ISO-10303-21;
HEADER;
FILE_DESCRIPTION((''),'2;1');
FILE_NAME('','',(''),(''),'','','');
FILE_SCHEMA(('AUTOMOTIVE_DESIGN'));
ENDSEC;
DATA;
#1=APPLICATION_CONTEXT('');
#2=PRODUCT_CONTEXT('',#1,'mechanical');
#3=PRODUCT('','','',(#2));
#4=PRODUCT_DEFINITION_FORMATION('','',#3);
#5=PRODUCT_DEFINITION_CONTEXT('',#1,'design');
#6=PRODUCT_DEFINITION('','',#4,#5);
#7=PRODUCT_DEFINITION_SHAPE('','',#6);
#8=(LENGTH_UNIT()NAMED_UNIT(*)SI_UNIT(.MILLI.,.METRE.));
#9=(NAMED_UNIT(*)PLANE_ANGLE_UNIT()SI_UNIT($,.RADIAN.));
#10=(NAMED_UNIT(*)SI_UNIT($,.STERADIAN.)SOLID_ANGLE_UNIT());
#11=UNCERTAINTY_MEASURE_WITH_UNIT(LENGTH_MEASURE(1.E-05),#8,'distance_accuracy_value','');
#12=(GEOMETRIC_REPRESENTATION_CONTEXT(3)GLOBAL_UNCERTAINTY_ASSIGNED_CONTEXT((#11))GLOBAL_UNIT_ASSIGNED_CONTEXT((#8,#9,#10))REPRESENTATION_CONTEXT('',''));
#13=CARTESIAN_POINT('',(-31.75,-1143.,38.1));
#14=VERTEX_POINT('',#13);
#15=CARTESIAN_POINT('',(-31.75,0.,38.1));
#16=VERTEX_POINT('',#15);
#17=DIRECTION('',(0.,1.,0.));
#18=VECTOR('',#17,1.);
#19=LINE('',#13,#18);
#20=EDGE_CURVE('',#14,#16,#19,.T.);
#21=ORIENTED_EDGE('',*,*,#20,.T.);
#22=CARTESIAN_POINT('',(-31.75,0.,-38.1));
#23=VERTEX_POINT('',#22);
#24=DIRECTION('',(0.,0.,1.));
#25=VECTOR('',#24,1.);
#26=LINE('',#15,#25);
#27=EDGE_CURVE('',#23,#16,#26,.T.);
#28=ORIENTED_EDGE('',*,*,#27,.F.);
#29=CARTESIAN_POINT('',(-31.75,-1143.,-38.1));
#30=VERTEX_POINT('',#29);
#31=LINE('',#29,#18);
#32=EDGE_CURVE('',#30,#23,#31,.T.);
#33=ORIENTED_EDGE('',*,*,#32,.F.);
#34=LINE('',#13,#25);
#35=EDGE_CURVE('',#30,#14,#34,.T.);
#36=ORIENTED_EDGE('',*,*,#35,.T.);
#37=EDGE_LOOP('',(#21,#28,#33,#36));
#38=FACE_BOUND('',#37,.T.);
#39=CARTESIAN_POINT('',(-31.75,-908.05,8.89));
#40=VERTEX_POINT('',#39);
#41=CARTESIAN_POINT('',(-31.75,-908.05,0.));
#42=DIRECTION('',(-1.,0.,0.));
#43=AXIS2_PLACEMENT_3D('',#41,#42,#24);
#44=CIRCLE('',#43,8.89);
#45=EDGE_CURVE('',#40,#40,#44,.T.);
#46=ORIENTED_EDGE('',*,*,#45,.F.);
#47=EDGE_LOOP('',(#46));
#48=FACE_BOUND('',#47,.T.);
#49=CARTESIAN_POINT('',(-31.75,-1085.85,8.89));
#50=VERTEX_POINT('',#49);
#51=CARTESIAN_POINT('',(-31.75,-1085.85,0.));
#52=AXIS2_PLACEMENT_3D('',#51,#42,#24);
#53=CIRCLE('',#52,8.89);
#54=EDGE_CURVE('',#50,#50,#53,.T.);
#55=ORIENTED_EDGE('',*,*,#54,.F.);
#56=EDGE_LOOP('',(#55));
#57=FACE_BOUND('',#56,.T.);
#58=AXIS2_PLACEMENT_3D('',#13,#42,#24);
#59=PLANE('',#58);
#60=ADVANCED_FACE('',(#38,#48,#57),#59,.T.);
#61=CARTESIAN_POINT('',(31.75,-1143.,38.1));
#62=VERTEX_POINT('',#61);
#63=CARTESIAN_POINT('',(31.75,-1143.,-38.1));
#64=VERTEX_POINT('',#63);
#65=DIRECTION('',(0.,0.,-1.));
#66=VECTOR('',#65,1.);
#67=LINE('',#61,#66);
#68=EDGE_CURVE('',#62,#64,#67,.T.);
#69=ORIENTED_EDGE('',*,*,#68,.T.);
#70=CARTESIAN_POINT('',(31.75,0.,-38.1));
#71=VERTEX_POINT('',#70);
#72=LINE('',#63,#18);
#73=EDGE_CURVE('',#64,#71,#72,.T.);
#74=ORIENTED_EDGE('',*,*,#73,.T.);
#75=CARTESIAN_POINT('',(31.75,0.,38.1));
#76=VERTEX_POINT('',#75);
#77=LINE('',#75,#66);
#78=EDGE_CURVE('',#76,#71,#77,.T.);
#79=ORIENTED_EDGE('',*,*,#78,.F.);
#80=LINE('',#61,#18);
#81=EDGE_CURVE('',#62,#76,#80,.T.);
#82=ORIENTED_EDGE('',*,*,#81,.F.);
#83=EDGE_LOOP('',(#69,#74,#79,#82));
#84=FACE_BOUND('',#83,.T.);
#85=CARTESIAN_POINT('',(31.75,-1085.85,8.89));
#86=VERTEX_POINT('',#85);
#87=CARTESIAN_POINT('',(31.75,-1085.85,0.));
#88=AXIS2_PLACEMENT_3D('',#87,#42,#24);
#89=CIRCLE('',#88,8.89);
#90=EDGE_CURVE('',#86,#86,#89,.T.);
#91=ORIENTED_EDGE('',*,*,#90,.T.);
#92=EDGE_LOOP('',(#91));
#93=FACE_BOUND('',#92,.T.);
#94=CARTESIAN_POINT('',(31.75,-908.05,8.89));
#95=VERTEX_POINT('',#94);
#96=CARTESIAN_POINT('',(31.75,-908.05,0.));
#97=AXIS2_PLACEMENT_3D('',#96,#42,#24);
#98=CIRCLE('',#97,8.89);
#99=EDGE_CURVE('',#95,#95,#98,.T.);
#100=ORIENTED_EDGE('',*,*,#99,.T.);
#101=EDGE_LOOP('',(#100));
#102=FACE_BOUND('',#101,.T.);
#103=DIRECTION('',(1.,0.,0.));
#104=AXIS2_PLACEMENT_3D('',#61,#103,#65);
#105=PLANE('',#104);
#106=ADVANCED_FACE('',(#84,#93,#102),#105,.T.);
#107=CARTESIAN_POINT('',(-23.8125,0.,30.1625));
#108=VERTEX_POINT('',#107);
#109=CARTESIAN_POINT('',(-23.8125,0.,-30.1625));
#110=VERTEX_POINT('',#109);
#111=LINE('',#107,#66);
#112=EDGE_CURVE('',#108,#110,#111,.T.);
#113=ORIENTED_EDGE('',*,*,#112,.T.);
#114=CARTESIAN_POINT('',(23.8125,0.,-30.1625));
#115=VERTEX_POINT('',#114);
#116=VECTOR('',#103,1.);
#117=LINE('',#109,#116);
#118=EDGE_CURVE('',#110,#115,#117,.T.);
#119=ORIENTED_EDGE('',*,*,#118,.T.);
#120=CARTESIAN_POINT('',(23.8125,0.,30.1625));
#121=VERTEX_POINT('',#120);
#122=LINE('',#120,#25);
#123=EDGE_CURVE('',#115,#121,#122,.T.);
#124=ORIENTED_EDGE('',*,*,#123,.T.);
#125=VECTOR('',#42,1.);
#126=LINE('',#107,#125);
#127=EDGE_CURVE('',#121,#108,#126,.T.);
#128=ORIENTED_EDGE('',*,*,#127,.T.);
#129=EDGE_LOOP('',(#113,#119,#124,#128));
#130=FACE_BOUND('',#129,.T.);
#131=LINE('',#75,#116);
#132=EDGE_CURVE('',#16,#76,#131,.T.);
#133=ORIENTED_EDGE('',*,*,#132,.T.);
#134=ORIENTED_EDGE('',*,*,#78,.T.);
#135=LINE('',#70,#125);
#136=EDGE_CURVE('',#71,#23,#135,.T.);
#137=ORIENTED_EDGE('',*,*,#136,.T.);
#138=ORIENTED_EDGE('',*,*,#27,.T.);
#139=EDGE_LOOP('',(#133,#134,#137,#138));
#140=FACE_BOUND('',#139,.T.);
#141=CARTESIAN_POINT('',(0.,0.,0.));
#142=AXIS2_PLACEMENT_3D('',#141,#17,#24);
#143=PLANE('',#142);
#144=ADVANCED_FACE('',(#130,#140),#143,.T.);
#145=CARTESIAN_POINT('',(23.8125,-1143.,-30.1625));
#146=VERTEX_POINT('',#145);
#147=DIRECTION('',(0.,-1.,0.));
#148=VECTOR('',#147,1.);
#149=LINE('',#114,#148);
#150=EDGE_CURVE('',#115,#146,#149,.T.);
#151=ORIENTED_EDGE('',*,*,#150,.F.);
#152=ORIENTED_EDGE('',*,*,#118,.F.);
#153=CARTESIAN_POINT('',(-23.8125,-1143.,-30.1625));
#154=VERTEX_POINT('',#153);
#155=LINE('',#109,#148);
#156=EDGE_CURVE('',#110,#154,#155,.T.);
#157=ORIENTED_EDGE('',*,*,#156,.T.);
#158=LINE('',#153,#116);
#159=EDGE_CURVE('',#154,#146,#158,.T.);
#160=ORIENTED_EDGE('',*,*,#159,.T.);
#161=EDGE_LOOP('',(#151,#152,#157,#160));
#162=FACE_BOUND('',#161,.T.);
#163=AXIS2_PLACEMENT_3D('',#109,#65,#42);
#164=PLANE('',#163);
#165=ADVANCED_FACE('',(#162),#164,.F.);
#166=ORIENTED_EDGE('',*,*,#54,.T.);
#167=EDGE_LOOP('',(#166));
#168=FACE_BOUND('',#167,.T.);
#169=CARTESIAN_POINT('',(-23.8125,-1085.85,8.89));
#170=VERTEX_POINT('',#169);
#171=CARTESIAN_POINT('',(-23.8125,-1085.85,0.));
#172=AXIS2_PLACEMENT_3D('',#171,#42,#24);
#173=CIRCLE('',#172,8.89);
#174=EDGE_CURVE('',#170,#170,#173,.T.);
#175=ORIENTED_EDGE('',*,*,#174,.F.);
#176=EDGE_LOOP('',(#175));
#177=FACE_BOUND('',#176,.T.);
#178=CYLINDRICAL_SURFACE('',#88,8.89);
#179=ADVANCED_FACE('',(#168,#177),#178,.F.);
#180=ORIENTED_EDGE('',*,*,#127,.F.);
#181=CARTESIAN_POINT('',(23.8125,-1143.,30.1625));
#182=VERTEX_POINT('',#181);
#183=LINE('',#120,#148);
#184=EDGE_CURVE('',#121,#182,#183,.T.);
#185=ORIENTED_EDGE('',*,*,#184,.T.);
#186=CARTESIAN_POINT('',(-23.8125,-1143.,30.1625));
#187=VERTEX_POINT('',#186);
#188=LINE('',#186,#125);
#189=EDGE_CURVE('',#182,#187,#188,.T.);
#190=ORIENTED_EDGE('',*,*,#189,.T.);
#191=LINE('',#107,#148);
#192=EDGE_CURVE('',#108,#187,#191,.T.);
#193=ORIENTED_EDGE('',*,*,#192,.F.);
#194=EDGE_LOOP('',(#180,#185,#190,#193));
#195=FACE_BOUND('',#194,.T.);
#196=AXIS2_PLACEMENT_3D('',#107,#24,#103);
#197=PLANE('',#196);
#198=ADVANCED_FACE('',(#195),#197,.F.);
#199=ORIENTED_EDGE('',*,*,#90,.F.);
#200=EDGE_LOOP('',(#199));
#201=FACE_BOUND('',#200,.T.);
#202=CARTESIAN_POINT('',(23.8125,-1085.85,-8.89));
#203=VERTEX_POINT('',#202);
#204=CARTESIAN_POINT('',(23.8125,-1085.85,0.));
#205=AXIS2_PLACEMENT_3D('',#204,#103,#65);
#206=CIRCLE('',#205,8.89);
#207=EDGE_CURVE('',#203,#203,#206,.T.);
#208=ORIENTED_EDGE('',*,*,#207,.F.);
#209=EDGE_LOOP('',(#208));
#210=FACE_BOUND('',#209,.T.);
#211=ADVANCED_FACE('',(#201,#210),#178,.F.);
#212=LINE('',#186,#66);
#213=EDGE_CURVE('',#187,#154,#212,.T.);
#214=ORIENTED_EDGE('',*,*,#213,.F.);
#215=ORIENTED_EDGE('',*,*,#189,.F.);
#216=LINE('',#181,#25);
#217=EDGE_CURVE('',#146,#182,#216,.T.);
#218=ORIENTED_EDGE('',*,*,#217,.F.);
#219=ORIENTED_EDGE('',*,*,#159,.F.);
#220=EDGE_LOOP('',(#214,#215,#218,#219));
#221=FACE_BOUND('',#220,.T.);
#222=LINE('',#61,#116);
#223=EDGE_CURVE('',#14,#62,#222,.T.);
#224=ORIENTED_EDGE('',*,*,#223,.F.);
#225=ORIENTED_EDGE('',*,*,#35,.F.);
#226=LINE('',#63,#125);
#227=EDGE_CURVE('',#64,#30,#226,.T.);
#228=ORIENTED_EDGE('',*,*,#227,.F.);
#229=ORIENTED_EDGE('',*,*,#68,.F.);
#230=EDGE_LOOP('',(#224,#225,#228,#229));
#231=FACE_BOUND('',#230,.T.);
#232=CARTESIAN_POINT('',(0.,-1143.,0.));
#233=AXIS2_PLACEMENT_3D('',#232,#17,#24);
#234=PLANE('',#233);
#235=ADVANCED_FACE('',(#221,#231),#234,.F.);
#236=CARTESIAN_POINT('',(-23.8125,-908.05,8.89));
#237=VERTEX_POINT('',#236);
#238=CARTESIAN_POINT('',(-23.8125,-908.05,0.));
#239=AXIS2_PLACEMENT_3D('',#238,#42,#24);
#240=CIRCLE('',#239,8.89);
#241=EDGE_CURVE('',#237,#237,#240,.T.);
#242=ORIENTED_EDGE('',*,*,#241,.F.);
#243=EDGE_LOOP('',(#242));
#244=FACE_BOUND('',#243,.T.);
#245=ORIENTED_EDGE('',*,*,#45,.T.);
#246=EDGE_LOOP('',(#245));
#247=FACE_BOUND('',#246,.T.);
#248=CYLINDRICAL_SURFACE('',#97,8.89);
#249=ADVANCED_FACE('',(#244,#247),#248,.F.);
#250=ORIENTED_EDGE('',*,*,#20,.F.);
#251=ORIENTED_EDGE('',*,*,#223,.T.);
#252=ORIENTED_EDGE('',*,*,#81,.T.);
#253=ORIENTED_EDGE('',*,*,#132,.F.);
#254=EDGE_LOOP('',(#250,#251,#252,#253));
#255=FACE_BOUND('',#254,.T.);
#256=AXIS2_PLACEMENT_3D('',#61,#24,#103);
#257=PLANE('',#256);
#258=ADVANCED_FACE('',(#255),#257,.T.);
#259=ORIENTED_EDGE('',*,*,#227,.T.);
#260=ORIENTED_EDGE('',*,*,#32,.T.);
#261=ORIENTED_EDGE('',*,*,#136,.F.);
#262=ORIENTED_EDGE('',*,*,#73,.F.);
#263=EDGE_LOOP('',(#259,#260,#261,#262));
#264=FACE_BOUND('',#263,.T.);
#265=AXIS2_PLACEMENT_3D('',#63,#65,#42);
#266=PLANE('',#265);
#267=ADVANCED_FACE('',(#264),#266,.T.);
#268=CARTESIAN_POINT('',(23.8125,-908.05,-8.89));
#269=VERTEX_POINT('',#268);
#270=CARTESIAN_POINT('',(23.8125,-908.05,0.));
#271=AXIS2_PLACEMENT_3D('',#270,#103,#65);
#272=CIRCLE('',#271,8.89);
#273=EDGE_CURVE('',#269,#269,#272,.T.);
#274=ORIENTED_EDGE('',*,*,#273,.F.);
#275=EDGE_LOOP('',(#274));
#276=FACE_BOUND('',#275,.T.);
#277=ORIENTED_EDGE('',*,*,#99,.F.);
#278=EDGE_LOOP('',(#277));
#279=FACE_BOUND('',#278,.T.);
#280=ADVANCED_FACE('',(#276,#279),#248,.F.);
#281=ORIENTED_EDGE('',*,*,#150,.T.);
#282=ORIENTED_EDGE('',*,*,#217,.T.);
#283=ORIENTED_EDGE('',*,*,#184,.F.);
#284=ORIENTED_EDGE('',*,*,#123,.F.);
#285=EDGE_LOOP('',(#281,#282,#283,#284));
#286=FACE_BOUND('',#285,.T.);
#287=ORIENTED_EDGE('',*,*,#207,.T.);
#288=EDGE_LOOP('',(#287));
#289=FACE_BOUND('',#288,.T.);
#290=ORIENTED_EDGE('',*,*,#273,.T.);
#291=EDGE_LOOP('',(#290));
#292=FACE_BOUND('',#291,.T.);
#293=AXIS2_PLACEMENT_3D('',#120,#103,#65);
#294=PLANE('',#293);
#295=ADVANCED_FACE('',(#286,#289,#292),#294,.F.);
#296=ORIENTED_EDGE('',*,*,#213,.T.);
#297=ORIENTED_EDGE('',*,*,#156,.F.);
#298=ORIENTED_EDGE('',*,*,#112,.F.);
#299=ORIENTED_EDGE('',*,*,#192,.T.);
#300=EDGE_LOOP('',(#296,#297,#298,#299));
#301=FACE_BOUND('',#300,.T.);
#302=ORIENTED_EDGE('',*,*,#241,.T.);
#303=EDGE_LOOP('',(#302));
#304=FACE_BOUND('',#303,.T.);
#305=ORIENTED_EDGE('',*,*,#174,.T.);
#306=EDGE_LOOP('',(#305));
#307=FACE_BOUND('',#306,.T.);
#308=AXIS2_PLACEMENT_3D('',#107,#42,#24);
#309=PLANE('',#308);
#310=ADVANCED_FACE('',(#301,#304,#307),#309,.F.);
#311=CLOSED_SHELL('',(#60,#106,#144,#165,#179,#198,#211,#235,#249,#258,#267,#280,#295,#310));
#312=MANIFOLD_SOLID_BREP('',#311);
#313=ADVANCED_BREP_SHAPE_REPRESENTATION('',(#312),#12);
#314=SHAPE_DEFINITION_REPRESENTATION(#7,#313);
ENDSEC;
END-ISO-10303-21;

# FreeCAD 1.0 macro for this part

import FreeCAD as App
import Part
import Sketcher

V = App.Vector
Q = App.Units.Quantity


def add_polygon(sketch, points):
    """Adds a closed chain of lines whose ends are joined by coincident constraints."""
    first, n = sketch.GeometryCount, len(points)
    for a, b in zip(points, points[1:] + points[:1]):
        sketch.addGeometry(Part.LineSegment(App.Vector(*a, 0), App.Vector(*b, 0)), False)
    for i in range(n):
        sketch.addConstraint(Sketcher.Constraint("Coincident", first + i, 2, first + (i + 1) % n, 1))

doc = App.newDocument("Part")
params = doc.addObject("Spreadsheet::Sheet", "Params")
for row, (alias, value) in enumerate([
    ("sketch1_height", "3 in"),
    ("sketch1_width", "2.5 in"),
    ("pad1_length", "45 in"),
    ("sketch2_width", "1.875 in"),
    ("sketch2_height", "2.375 in"),
    ("sketch3_diameter", "0.7 in"),
], start=1):
    params.set(f"A{row}", alias)
    params.set(f"B{row}", "=" + value)
    params.setAlias(f"B{row}", alias)

body = doc.addObject("PartDesign::Body", "Body")

sketch1 = body.newObject("Sketcher::SketchObject", "Sketch")
sketch1.AttachmentSupport = (doc.getObject("XZ_Plane"), [""])
sketch1.MapMode = "FlatFace"
add_polygon(sketch1, [(-32, -38), (-32, 38), (32, 38), (32, -38)])
sketch1.addConstraint([
    Sketcher.Constraint("Vertical", 0),
    Sketcher.Constraint("Horizontal", 1),
    Sketcher.Constraint("Vertical", 2),
    Sketcher.Constraint("Horizontal", 3),
    Sketcher.Constraint("Symmetric", 0, 2, 2, 2, -1, 1),
    Sketcher.Constraint("DistanceY", 0, 1, 0, 2, Q("3 in")),
    Sketcher.Constraint("DistanceX", 1, 1, 1, 2, Q("2.5 in")),
])
sketch1.setExpression("Constraints[9]", "Params.sketch1_height")
sketch1.setExpression("Constraints[10]", "Params.sketch1_width")
pad1 = body.newObject("PartDesign::Pad", "Pad")
pad1.Profile = sketch1
pad1.setExpression("Length", "Params.pad1_length")

sketch2 = body.newObject("Sketcher::SketchObject", "Sketch001")
sketch2.AttachmentSupport = (doc.getObject("XZ_Plane"), [""])
sketch2.MapMode = "FlatFace"
sketch2.AttachmentOffset = App.Placement(V(0, 0, 45 * 25.4), App.Rotation())
add_polygon(sketch2, [(-24, 30), (-24, -30), (24, -30), (24, 30)])
sketch2.addConstraint([
    Sketcher.Constraint("Vertical", 0),
    Sketcher.Constraint("Horizontal", 1),
    Sketcher.Constraint("Vertical", 2),
    Sketcher.Constraint("Horizontal", 3),
    Sketcher.Constraint("Symmetric", 0, 2, 2, 2, -1, 1),
    Sketcher.Constraint("DistanceX", 1, 1, 1, 2, Q("1.875 in")),
    Sketcher.Constraint("DistanceY", 0, 2, 0, 1, Q("2.375 in")),
])
sketch2.setExpression("Constraints[9]", "Params.sketch2_width")
sketch2.setExpression("Constraints[10]", "Params.sketch2_height")
pocket1 = body.newObject("PartDesign::Pocket", "Pocket")
pocket1.Profile = sketch2
pocket1.Type = "ThroughAll"

sketch3 = body.newObject("Sketcher::SketchObject", "Sketch002")
sketch3.AttachmentSupport = (doc.getObject("YZ_Plane"), [""])
sketch3.MapMode = "FlatFace"
sketch3.AttachmentOffset = App.Placement(V(0, 0, -1.25 * 25.4), App.Rotation())
sketch3.addGeometry([
    Part.Circle(V(-908, 0, 0), V(0, 0, 1), 9),
    Part.Circle(V(-1086, 0, 0), V(0, 0, 1), 9),
], False)
sketch3.addConstraint([
    Sketcher.Constraint("Equal", 0, 1),
    Sketcher.Constraint("PointOnObject", 0, 3, -1),
    Sketcher.Constraint("PointOnObject", 1, 3, -1),
    Sketcher.Constraint("Diameter", 0, Q("0.7 in")),
    Sketcher.Constraint("DistanceX", 1, 3, 0, 3, Q("7 in")),
    Sketcher.Constraint("DistanceX", 0, 3, -1, 1, Q("35.75 in")),
])
sketch3.setExpression("Constraints[3]", "Params.sketch3_diameter")
pocket2 = body.newObject("PartDesign::Pocket", "Pocket001")
pocket2.Profile = sketch3
pocket2.Type = "ThroughAll"
pocket2.Reversed = True

doc.recompute()
